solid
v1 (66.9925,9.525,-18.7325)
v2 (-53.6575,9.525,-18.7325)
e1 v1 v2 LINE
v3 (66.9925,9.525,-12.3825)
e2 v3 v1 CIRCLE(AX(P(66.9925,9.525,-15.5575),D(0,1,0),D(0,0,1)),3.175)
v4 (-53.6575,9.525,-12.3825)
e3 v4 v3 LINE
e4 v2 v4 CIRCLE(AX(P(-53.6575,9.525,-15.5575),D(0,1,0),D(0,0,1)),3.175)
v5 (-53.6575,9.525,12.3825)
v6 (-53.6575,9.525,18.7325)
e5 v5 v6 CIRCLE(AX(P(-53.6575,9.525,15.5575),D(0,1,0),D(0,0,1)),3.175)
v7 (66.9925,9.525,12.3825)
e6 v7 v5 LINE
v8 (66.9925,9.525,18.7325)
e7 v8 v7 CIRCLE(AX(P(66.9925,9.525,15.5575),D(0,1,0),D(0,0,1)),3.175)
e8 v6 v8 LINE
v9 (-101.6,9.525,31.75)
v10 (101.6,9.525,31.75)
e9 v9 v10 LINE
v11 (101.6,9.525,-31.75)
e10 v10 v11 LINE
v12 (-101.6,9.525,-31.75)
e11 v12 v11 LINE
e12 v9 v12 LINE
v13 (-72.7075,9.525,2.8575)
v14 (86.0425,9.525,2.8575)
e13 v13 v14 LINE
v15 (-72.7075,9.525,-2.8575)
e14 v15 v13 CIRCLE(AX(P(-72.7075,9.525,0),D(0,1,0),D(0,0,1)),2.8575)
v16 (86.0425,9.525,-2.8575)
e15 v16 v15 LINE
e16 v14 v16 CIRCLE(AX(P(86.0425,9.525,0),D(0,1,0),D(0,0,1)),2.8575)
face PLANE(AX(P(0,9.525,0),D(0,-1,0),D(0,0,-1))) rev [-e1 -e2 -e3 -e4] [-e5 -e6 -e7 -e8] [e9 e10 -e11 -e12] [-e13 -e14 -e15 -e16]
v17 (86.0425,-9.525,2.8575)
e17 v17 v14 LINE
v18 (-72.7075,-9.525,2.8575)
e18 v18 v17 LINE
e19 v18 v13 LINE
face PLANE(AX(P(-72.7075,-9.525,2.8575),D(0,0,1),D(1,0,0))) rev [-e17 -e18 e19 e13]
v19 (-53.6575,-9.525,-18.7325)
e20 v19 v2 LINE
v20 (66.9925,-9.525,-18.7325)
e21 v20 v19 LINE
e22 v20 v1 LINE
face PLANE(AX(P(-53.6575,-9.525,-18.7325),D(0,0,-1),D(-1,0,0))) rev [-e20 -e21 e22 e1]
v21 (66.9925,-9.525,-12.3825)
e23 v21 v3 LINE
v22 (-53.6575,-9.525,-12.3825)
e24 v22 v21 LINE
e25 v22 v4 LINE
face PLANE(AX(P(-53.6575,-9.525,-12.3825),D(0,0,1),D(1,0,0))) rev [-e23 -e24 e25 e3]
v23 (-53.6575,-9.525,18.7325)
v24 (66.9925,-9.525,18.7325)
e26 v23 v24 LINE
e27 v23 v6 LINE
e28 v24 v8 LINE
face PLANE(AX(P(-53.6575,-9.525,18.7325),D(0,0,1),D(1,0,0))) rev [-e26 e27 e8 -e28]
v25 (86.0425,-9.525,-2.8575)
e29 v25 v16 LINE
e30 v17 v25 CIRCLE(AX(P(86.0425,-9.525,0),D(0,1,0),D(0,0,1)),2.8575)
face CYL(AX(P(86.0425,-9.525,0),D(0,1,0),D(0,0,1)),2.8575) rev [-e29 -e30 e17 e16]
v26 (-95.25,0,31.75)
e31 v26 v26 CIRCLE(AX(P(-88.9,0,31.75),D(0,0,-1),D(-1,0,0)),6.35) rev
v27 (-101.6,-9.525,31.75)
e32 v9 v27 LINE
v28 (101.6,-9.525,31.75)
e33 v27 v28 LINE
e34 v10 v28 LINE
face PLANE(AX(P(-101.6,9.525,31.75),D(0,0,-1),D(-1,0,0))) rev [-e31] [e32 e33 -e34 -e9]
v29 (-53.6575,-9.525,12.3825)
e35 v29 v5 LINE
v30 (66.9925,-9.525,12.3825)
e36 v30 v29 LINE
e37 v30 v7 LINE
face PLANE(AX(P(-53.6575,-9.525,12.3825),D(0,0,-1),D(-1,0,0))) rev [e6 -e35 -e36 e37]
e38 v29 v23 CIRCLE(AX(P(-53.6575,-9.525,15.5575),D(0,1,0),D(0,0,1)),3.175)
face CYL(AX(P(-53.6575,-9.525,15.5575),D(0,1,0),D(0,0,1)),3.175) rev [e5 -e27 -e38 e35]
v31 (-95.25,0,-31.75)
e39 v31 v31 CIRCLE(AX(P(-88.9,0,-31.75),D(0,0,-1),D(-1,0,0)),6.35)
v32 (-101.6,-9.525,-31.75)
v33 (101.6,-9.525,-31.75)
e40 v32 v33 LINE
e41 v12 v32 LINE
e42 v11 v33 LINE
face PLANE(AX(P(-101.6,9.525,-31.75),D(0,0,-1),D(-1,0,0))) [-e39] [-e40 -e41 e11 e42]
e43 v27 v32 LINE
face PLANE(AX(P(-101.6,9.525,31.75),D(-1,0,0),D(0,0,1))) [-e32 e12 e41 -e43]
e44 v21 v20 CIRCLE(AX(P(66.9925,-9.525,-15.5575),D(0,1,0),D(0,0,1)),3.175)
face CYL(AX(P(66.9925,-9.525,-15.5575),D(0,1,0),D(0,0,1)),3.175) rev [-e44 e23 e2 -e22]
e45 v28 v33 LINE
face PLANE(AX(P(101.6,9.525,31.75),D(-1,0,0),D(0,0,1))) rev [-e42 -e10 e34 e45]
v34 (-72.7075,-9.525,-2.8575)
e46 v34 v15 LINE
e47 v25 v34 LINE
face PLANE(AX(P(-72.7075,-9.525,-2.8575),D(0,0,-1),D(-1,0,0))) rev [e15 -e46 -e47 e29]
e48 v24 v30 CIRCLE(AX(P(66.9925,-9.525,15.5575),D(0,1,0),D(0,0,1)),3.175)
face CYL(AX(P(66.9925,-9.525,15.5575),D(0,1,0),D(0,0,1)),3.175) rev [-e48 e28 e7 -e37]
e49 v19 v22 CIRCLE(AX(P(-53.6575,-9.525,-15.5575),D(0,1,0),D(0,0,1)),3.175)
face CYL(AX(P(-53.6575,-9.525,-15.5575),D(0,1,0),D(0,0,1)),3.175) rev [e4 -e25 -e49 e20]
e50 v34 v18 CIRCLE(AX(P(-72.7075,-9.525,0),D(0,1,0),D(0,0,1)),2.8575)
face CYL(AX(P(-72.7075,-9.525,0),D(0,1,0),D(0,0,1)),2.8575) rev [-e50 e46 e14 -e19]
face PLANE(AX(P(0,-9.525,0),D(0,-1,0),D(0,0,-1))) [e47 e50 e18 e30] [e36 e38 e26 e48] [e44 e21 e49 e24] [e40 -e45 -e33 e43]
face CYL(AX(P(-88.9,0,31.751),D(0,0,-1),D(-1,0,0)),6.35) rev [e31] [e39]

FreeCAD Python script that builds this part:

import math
import FreeCAD as App
import Part
import Sketcher
from FreeCAD import Vector
Q = App.Units.Quantity


def add_polygon(sketch, points):
    """Adds a closed chain of lines whose ends are joined by coincident constraints."""
    first, n = sketch.GeometryCount, len(points)
    for a, b in zip(points, points[1:] + points[:1]):
        sketch.addGeometry(Part.LineSegment(App.Vector(*a, 0), App.Vector(*b, 0)), False)
    for i in range(n):
        sketch.addConstraint(Sketcher.Constraint("Coincident", first + i, 2, first + (i + 1) % n, 1))

doc = App.newDocument("Part")
body = doc.addObject("PartDesign::Body", "Body")

sketch1 = body.newObject("Sketcher::SketchObject", "Sketch")
sketch1.AttachmentSupport = (doc.getObject("XZ_Plane"), [""])
sketch1.MapMode = "FlatFace"
add_polygon(sketch1, [(-102, -32), (-102, 32), (102, 32), (102, -32)])
sketch1.addConstraint([
    Sketcher.Constraint("Vertical", 0),
    Sketcher.Constraint("Horizontal", 1),
    Sketcher.Constraint("Vertical", 2),
    Sketcher.Constraint("Horizontal", 3),
    Sketcher.Constraint("Symmetric", 0, 2, 2, 2, -1, 1),
    Sketcher.Constraint("DistanceX", 1, 1, 1, 2, Q("8 in")),
    Sketcher.Constraint("DistanceY", 0, 1, 0, 2, Q("2.5 in")),
])
pad1 = body.newObject("PartDesign::Pad", "Pad")
pad1.Profile = sketch1
pad1.Length = Q("0.75 in")
pad1.Midplane = True

sketch2 = body.newObject("Sketcher::SketchObject", "Sketch001")
sketch2.AttachmentSupport = (doc.getObject("XZ_Plane"), [""])
sketch2.MapMode = "FlatFace"
sketch2.AttachmentOffset = App.Placement(Vector(0, 0, -0.375 * 25.4), App.Rotation())
sketch2.addGeometry([
    Part.LineSegment(Vector(86, -2.9, 0), Vector(-72.7, -2.9, 0)),
    Part.ArcOfCircle(Part.Circle(Vector(-72.7, 0, 0), Vector(0, 0, 1), 2.9), math.radians(90), math.radians(270)),
    Part.LineSegment(Vector(-72.7, 2.9, 0), Vector(86, 2.9, 0)),
    Part.ArcOfCircle(Part.Circle(Vector(86, 0, 0), Vector(0, 0, 1), 2.9), math.radians(-90), math.radians(90)),
    Part.LineSegment(Vector(67, -18.7, 0), Vector(-53.7, -18.7, 0)),
    Part.ArcOfCircle(Part.Circle(Vector(-53.7, -15.6, 0), Vector(0, 0, 1), 3.2), math.radians(90), math.radians(270)),
    Part.LineSegment(Vector(-53.7, -12.4, 0), Vector(67, -12.4, 0)),
    Part.ArcOfCircle(Part.Circle(Vector(67, -15.6, 0), Vector(0, 0, 1), 3.2), math.radians(-90), math.radians(90)),
    Part.LineSegment(Vector(67, 12.4, 0), Vector(-53.7, 12.4, 0)),
    Part.ArcOfCircle(Part.Circle(Vector(-53.7, 15.6, 0), Vector(0, 0, 1), 3.2), math.radians(90), math.radians(270)),
    Part.LineSegment(Vector(-53.7, 18.7, 0), Vector(67, 18.7, 0)),
    Part.ArcOfCircle(Part.Circle(Vector(67, 15.6, 0), Vector(0, 0, 1), 3.2), math.radians(-90), math.radians(90)),
], False)
sketch2.addConstraint([
    Sketcher.Constraint("Tangent", 0, 2, 1, 2),
    Sketcher.Constraint("Tangent", 1, 1, 2, 1),
    Sketcher.Constraint("Tangent", 2, 2, 3, 2),
    Sketcher.Constraint("Tangent", 3, 1, 0, 1),
    Sketcher.Constraint("Tangent", 4, 2, 5, 2),
    Sketcher.Constraint("Tangent", 5, 1, 6, 1),
    Sketcher.Constraint("Tangent", 6, 2, 7, 2),
    Sketcher.Constraint("Tangent", 7, 1, 4, 1),
    Sketcher.Constraint("Tangent", 8, 2, 9, 2),
    Sketcher.Constraint("Tangent", 9, 1, 10, 1),
    Sketcher.Constraint("Tangent", 10, 2, 11, 2),
    Sketcher.Constraint("Tangent", 11, 1, 8, 1),
    Sketcher.Constraint("Horizontal", 0),
    Sketcher.Constraint("Horizontal", 2),
    Sketcher.Constraint("Horizontal", 4),
    Sketcher.Constraint("Horizontal", 6),
    Sketcher.Constraint("Horizontal", 8),
    Sketcher.Constraint("Horizontal", 10),
    Sketcher.Constraint("Equal", 7, 9),
    Sketcher.Constraint("Symmetric", 5, 3, 9, 3, -1),
    Sketcher.Constraint("PointOnObject", 1, 3, -1),
    Sketcher.Constraint("Vertical", 7, 3, 11, 3),
    Sketcher.Constraint("Radius", 5, Q("0.125 in")),
    Sketcher.Constraint("DistanceX", 0, 2, 0, 1, Q("6.25 in")),
    Sketcher.Constraint("DistanceX", 4, 2, 4, 1, Q("4.75 in")),
    Sketcher.Constraint("Radius", 1, Q("0.1125 in")),
    Sketcher.Constraint("DistanceX", 5, 3, 3, 3, Q("5.5 in")),
    Sketcher.Constraint("DistanceY", 5, 3, 0, 2, Q("0.5 in")),
    Sketcher.Constraint("DistanceX", 1, 3, -1, 1, Q("2.8625 in")),
])
pocket1 = body.newObject("PartDesign::Pocket", "Pocket")
pocket1.Profile = sketch2
pocket1.Type = "ThroughAll"
pocket1.Reversed = True

sketch3 = body.newObject("Sketcher::SketchObject", "Sketch002")
sketch3.AttachmentSupport = (doc.getObject("XY_Plane"), [""])
sketch3.MapMode = "FlatFace"
sketch3.AttachmentOffset = App.Placement(Vector(0, 0, -1.25 * 25.4), App.Rotation())
sketch3.addGeometry(Part.Circle(Vector(-89, 0, 0), Vector(0, 0, 1), 6), False)
sketch3.addConstraint([
    Sketcher.Constraint("PointOnObject", 0, 3, -1),
    Sketcher.Constraint("Diameter", 0, Q("0.5 in")),
    Sketcher.Constraint("DistanceX", 0, 3, -1, 1, Q("3.5 in")),
])
pocket2 = body.newObject("PartDesign::Pocket", "Pocket001")
pocket2.Profile = sketch3
pocket2.Type = "UpToFirst"
pocket2.Reversed = True

doc.recompute()
